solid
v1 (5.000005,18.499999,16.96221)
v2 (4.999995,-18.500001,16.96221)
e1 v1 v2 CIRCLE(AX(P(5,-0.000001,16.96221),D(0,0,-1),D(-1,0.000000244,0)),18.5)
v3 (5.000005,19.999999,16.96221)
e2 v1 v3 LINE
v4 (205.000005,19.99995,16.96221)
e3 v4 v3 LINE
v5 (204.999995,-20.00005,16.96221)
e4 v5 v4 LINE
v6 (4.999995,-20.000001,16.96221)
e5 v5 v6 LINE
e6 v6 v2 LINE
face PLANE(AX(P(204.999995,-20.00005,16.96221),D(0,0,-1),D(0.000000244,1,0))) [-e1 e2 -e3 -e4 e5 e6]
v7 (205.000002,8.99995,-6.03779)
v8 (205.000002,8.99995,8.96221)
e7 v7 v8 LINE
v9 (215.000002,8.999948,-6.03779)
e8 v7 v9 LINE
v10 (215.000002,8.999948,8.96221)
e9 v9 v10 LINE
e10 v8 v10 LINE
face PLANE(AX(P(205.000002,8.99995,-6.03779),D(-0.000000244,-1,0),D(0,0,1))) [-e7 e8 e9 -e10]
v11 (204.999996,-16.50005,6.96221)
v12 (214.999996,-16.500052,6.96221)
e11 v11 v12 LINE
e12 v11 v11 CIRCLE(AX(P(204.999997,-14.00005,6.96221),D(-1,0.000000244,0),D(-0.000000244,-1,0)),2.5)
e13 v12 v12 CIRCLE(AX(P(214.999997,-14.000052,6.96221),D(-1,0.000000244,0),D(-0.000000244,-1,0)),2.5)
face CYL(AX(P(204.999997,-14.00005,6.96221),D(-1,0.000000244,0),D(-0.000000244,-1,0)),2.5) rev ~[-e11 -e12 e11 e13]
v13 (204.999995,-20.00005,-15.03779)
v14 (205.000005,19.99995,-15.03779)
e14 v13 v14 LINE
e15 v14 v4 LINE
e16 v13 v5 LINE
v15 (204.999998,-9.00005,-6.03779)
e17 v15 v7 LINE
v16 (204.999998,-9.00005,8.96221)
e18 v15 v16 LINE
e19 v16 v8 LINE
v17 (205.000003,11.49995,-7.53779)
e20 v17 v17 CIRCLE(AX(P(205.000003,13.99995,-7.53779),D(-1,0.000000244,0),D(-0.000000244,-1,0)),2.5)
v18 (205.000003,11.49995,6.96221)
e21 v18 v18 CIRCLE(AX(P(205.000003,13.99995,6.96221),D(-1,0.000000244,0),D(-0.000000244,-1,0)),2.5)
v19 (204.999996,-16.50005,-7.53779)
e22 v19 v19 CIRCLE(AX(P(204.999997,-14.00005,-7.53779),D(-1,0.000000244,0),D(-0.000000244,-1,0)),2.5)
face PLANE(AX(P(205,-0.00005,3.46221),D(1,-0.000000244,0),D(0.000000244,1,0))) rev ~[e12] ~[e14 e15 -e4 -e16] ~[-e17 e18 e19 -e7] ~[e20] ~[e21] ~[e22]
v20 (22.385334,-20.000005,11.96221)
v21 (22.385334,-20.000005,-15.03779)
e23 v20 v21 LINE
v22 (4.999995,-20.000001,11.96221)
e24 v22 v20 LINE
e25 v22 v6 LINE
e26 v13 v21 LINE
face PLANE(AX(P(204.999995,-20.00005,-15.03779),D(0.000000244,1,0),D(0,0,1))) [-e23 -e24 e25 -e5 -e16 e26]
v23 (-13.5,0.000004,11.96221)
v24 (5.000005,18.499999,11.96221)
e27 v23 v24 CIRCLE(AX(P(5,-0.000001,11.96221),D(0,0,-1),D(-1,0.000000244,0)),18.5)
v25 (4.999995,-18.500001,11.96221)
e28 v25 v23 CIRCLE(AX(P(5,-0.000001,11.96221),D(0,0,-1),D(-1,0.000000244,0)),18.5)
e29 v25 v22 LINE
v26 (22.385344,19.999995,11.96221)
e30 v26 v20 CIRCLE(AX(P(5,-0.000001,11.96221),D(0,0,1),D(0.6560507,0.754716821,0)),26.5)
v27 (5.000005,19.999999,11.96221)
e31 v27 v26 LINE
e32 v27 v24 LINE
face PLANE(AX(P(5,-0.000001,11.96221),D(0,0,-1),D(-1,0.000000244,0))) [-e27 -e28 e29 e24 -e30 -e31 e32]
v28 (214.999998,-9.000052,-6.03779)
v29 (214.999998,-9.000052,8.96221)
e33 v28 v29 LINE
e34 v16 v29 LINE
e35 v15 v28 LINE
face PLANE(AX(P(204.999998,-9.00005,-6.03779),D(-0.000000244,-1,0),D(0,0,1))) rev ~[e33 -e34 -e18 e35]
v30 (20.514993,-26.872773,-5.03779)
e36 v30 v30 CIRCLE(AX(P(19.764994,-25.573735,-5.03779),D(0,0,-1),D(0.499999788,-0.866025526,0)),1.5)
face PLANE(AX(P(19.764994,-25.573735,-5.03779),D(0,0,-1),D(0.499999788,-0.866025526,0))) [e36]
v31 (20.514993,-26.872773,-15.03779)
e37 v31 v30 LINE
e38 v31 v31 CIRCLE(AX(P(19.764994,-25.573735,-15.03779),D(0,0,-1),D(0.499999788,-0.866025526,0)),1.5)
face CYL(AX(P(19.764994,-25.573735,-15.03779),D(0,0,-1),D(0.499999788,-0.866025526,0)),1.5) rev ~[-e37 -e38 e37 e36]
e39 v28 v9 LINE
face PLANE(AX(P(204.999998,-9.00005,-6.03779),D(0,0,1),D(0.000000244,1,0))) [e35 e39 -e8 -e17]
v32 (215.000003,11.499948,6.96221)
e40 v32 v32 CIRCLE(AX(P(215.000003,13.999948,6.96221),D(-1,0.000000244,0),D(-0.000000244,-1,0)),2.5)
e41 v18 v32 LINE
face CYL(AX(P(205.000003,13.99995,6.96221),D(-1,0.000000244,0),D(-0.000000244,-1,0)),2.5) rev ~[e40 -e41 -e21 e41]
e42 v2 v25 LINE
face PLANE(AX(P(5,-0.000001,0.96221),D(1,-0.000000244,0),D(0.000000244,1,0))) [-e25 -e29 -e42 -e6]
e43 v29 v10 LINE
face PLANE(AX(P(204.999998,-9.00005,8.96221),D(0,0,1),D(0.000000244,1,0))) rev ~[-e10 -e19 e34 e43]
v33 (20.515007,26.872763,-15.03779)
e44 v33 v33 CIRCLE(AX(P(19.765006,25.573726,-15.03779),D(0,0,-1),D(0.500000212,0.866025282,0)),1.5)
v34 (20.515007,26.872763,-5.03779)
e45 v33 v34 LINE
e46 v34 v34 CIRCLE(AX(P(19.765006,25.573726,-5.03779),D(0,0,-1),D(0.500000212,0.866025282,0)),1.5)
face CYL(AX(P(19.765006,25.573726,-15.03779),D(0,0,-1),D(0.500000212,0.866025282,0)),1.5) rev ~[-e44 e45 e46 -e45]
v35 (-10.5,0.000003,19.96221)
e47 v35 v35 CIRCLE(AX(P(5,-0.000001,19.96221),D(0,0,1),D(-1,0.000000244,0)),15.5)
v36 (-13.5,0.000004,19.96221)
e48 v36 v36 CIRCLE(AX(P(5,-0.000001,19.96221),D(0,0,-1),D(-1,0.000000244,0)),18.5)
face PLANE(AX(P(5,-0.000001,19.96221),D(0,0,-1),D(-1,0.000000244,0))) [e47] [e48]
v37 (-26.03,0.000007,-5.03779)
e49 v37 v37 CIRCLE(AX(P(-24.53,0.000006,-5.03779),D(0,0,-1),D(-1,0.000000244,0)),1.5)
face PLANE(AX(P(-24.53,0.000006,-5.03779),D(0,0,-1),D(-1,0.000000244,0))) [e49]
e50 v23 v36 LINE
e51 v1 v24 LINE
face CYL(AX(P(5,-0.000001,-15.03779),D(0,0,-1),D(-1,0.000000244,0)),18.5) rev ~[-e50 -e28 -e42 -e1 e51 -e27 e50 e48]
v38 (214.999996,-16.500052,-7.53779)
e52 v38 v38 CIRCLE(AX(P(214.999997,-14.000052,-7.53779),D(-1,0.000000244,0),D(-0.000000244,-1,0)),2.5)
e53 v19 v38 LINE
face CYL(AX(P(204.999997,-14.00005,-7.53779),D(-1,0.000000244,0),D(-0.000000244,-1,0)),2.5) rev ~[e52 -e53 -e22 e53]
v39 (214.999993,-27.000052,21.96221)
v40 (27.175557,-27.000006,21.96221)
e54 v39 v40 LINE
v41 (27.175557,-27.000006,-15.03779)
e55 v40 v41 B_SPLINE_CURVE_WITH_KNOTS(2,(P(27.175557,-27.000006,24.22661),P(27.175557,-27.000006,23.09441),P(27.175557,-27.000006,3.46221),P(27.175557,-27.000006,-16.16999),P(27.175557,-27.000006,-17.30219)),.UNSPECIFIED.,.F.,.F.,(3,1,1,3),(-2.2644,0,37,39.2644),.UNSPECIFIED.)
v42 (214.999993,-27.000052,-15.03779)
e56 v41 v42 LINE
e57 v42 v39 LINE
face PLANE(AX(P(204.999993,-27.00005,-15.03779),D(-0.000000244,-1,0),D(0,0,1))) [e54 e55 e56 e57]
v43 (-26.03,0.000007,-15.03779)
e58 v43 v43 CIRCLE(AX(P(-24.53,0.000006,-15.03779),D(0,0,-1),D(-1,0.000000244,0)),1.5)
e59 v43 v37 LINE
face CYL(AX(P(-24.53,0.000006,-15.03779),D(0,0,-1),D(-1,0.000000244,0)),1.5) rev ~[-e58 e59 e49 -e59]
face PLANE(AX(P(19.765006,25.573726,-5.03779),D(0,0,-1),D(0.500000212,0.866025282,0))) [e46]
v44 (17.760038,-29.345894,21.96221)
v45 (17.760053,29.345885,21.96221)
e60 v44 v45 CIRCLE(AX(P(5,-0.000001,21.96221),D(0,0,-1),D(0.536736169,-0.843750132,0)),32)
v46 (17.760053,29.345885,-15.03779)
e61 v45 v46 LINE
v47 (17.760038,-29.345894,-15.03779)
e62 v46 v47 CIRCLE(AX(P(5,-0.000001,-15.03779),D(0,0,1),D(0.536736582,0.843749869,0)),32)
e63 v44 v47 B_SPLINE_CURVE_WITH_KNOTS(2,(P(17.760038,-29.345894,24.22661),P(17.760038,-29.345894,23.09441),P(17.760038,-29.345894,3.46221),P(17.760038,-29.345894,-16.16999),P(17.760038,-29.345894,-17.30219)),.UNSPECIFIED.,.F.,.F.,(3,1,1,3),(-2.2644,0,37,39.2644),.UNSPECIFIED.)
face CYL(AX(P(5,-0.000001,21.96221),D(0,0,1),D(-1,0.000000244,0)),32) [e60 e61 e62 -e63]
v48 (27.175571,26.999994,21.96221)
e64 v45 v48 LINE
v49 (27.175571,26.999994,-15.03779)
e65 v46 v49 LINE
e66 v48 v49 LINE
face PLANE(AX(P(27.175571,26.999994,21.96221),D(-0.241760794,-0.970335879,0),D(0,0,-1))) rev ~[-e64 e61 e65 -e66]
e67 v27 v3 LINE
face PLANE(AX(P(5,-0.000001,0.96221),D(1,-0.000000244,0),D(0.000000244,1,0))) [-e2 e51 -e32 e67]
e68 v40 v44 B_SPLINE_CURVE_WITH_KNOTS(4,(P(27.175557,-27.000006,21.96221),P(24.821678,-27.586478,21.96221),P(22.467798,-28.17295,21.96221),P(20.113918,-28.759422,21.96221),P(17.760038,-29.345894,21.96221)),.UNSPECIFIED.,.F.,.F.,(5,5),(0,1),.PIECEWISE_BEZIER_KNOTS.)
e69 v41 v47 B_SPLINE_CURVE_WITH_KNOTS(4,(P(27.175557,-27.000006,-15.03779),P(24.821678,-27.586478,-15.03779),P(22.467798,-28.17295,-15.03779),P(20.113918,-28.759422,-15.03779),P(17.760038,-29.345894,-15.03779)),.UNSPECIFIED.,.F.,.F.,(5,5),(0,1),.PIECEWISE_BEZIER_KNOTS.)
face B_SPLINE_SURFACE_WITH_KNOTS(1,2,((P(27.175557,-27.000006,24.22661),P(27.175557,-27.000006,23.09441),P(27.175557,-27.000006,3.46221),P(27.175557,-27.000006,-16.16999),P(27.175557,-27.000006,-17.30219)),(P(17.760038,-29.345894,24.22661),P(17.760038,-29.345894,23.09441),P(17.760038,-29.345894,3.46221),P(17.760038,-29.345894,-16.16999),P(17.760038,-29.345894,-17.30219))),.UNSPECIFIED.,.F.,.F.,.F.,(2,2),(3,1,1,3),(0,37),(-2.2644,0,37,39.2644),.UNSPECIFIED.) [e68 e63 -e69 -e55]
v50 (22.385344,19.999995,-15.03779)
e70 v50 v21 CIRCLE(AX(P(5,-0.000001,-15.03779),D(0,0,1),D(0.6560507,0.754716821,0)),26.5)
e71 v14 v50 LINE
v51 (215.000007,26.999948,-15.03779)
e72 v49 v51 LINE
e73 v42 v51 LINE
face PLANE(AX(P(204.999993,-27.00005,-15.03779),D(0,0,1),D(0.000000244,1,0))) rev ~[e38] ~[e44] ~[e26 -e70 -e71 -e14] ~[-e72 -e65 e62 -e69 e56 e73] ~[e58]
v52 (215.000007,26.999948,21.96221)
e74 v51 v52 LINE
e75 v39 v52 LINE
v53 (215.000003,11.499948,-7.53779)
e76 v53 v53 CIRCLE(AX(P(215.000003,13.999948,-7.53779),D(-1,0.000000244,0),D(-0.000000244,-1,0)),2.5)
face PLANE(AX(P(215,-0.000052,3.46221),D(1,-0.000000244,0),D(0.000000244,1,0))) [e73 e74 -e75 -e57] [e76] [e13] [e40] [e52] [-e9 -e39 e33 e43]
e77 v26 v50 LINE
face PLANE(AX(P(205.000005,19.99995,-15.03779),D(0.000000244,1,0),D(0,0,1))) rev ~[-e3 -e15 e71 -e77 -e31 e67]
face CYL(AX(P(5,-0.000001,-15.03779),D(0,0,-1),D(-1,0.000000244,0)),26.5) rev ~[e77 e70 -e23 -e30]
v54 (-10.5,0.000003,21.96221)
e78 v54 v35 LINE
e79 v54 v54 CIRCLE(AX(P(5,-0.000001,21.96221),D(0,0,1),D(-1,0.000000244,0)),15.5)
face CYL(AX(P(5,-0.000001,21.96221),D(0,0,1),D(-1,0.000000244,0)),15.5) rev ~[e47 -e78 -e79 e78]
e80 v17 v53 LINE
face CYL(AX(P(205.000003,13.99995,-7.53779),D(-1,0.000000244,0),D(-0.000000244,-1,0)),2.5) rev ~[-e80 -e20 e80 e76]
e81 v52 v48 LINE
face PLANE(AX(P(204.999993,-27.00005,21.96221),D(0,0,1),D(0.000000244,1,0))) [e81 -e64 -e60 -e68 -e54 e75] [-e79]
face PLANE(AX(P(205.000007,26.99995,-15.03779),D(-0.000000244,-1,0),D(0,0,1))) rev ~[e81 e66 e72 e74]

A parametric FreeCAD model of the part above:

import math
import FreeCAD as App
import Part
import Sketcher


def edges_at(feature, points):
    """Names of the edges that pass closest to the given points."""
    edges = feature.Shape.Edges
    near = lambda p: min(range(len(edges)), key=lambda i: edges[i].distToShape(Part.Vertex(*p))[0])
    return sorted({f"Edge{near(p) + 1}" for p in points})


def add_polygon(sketch, points):
    """Adds a closed chain of lines whose ends are joined by coincident constraints."""
    first, n = sketch.GeometryCount, len(points)
    for a, b in zip(points, points[1:] + points[:1]):
        sketch.addGeometry(Part.LineSegment(App.Vector(*a, 0), App.Vector(*b, 0)), False)
    for i in range(n):
        sketch.addConstraint(Sketcher.Constraint("Coincident", first + i, 2, first + (i + 1) % n, 1))

doc = App.newDocument("Part")
body = doc.addObject("PartDesign::Body", "Body")

# Sketch on XY plane
sketch1 = doc.addObject("Sketcher::SketchObject", "Sketch")
body.addObject(sketch1)
sketch1.AttachmentSupport = (doc.XY_Plane, [""])
sketch1.MapMode = "FlatFace"
sketch1.AttachmentOffset = App.Placement(App.Vector(0, 0, 19.5), App.Rotation())
sketch1.addGeometry(Part.Circle(App.Vector(0, 0, 0), App.Vector(0, 0, 1), 32), False)
sketch1.addConstraint(Sketcher.Constraint("Coincident", 0, 3, -1, 1))
sketch1.addConstraint(Sketcher.Constraint("Diameter", 0, 64.0))
pad1 = doc.addObject("PartDesign::Pad", "Pad")
body.addObject(pad1)
pad1.Profile = sketch1
pad1.Length = 37
pad1.Reversed = True

# Sketch on XY plane
sketch2 = doc.addObject("Sketcher::SketchObject", "Sketch001")
body.addObject(sketch2)
sketch2.AttachmentSupport = (doc.XY_Plane, [""])
sketch2.MapMode = "FlatFace"
sketch2.AttachmentOffset = App.Placement(App.Vector(0, 0, -17.5), App.Rotation())
sketch2.addGeometry(Part.Circle(App.Vector(0, 0, 0), App.Vector(0, 0, 1), 18.5), False)
sketch2.addConstraint(Sketcher.Constraint("Coincident", 0, 3, -1, 1))
sketch2.addConstraint(Sketcher.Constraint("Diameter", 0, 37.0))
pocket1 = doc.addObject("PartDesign::Pocket", "Pocket")
body.addObject(pocket1)
pocket1.Profile = sketch2
pocket1.Length = 35
pocket1.Reversed = True

# Sketch on XY plane
sketch3 = doc.addObject("Sketcher::SketchObject", "Sketch002")
body.addObject(sketch3)
sketch3.AttachmentSupport = (doc.XY_Plane, [""])
sketch3.MapMode = "FlatFace"
sketch3.AttachmentOffset = App.Placement(App.Vector(0, 0, -17.5), App.Rotation())
sketch3.addGeometry(Part.Circle(App.Vector(0, 0, 0), App.Vector(0, 0, 1), 26.5), False)
sketch3.addConstraint(Sketcher.Constraint("Coincident", 0, 3, -1, 1))
sketch3.addConstraint(Sketcher.Constraint("Diameter", 0, 53.0))
pocket2 = doc.addObject("PartDesign::Pocket", "Pocket001")
body.addObject(pocket2)
pocket2.Profile = sketch3
pocket2.Length = 27
pocket2.Reversed = True

# Sketch on XY plane
sketch4 = doc.addObject("Sketcher::SketchObject", "Sketch003")
body.addObject(sketch4)
sketch4.AttachmentSupport = (doc.XY_Plane, [""])
sketch4.MapMode = "FlatFace"
sketch4.AttachmentOffset = App.Placement(App.Vector(0, 0, 19.5), App.Rotation())
sketch4.addGeometry(Part.Circle(App.Vector(0, 0, 0), App.Vector(0, 0, 1), 15.5), False)
sketch4.addConstraint(Sketcher.Constraint("Coincident", 0, 3, -1, 1))
sketch4.addConstraint(Sketcher.Constraint("Diameter", 0, 31.0))
pocket3 = doc.addObject("PartDesign::Pocket", "Pocket002")
body.addObject(pocket3)
pocket3.Profile = sketch4
pocket3.Type = "ThroughAll"

# Sketch on XY plane
sketch5 = doc.addObject("Sketcher::SketchObject", "Sketch004")
body.addObject(sketch5)
sketch5.AttachmentSupport = (doc.XY_Plane, [""])
sketch5.MapMode = "FlatFace"
sketch5.AttachmentOffset = App.Placement(App.Vector(0, 0, 19.5), App.Rotation())
sketch5.addGeometry(Part.ArcOfCircle(Part.Circle(App.Vector(0, 0, 0), App.Vector(0, 0, 1), 32), math.radians(122.461745), math.radians(237.538255)), False)
sketch5.addGeometry(Part.LineSegment(App.Vector(-17.175564, 27, 0), App.Vector(-200, 27, 0)), False)
sketch5.addGeometry(Part.LineSegment(App.Vector(-200, 27, 0), App.Vector(-200, -27, 0)), False)
sketch5.addGeometry(Part.LineSegment(App.Vector(-200, -27, 0), App.Vector(-17.175564, -27, 0)), False)
sketch5.addConstraint(Sketcher.Constraint("Coincident", 0, 1, 1, 1))
sketch5.addConstraint(Sketcher.Constraint("Coincident", 1, 2, 2, 1))
sketch5.addConstraint(Sketcher.Constraint("Coincident", 2, 2, 3, 1))
sketch5.addConstraint(Sketcher.Constraint("Coincident", 3, 2, 0, 2))
sketch5.addConstraint(Sketcher.Constraint("Horizontal", 1))
sketch5.addConstraint(Sketcher.Constraint("Vertical", 2))
sketch5.addConstraint(Sketcher.Constraint("Horizontal", 3))
sketch5.addConstraint(Sketcher.Constraint("Coincident", 0, 3, -1, 1))
sketch5.addConstraint(Sketcher.Constraint("Vertical", 0, 1, 3, 2))
sketch5.addConstraint(Sketcher.Constraint("Radius", 0, 32.0))
sketch5.addConstraint(Sketcher.Constraint("DistanceY", 2, 2, 2, 1, 54.0))
sketch5.addConstraint(Sketcher.Constraint("DistanceX", 1, 2, -1, 1, 200.0))
pad2 = doc.addObject("PartDesign::Pad", "Pad001")
body.addObject(pad2)
pad2.Profile = sketch5
pad2.Length = 37
pad2.Reversed = True

# Sketch on YZ plane
sketch6 = doc.addObject("Sketcher::SketchObject", "Sketch005")
body.addObject(sketch6)
sketch6.AttachmentSupport = (doc.YZ_Plane, [""])
sketch6.MapMode = "FlatFace"
sketch6.AttachmentOffset = App.Placement(App.Vector(0, 0, -200), App.Rotation())
add_polygon(sketch6, [(20, 14.5), (20, -17.5), (-20, -17.5), (-20, 14.5)])  # lines 0-3
sketch6.addConstraint(Sketcher.Constraint("Vertical", 0))
sketch6.addConstraint(Sketcher.Constraint("Horizontal", 1))
sketch6.addConstraint(Sketcher.Constraint("Vertical", 2))
sketch6.addConstraint(Sketcher.Constraint("Horizontal", 3))
sketch6.addConstraint(Sketcher.Constraint("DistanceX", 1, 2, 1, 1, 40.0))
sketch6.addConstraint(Sketcher.Constraint("DistanceY", 0, 2, 0, 1, 32.0))
sketch6.addConstraint(Sketcher.Constraint("DistanceX", -1, 1, 0, 2, 20.0))
sketch6.addConstraint(Sketcher.Constraint("DistanceY", 0, 2, -1, 1, 17.5))
pocket4 = doc.addObject("PartDesign::Pocket", "Pocket003")
body.addObject(pocket4)
pocket4.Profile = sketch6
pocket4.Length = 200
pocket4.Reversed = True

# Sketch on YZ plane
sketch7 = doc.addObject("Sketcher::SketchObject", "Sketch006")
body.addObject(sketch7)
sketch7.AttachmentSupport = (doc.YZ_Plane, [""])
sketch7.MapMode = "FlatFace"
sketch7.AttachmentOffset = App.Placement(App.Vector(0, 0, -200), App.Rotation())
add_polygon(sketch7, [(27, 19.5), (27, -17.5), (-27, -17.5), (-27, 19.5)])  # lines 0-3
add_polygon(sketch7, [(-9, -8.5), (9, -8.5), (9, 6.5), (-9, 6.5)])  # lines 4-7
sketch7.addConstraint(Sketcher.Constraint("Vertical", 0))
sketch7.addConstraint(Sketcher.Constraint("Horizontal", 1))
sketch7.addConstraint(Sketcher.Constraint("Vertical", 2))
sketch7.addConstraint(Sketcher.Constraint("Horizontal", 3))
sketch7.addConstraint(Sketcher.Constraint("Horizontal", 4))
sketch7.addConstraint(Sketcher.Constraint("Vertical", 5))
sketch7.addConstraint(Sketcher.Constraint("Horizontal", 6))
sketch7.addConstraint(Sketcher.Constraint("Vertical", 7))
sketch7.addConstraint(Sketcher.Constraint("DistanceX", 1, 2, 1, 1, 54.0))
sketch7.addConstraint(Sketcher.Constraint("DistanceX", 4, 1, 4, 2, 18.0))
sketch7.addConstraint(Sketcher.Constraint("DistanceY", 0, 2, 0, 1, 37.0))
sketch7.addConstraint(Sketcher.Constraint("DistanceY", 5, 1, 5, 2, 15.0))
sketch7.addConstraint(Sketcher.Constraint("DistanceX", -1, 1, 0, 2, 27.0))
sketch7.addConstraint(Sketcher.Constraint("DistanceX", -1, 1, 4, 2, 9.0))
sketch7.addConstraint(Sketcher.Constraint("DistanceY", 0, 2, 4, 2, 9.0))
sketch7.addConstraint(Sketcher.Constraint("DistanceY", 0, 2, -1, 1, 17.5))
pad3 = doc.addObject("PartDesign::Pad", "Pad002")
body.addObject(pad3)
pad3.Profile = sketch7
pad3.Length = 10
pad3.Reversed = True

# Sketch on XY plane
sketch8 = doc.addObject("Sketcher::SketchObject", "Sketch007")
body.addObject(sketch8)
sketch8.AttachmentSupport = (doc.XY_Plane, [""])
sketch8.MapMode = "FlatFace"
sketch8.AttachmentOffset = App.Placement(App.Vector(0, 0, -17.5), App.Rotation())
sketch8.addGeometry(Part.Circle(App.Vector(29.53, 0, 0), App.Vector(0, 0, 1), 1.5), False)
sketch8.addConstraint(Sketcher.Constraint("PointOnObject", 0, 3, -1))
sketch8.addConstraint(Sketcher.Constraint("Diameter", 0, 3.0))
sketch8.addConstraint(Sketcher.Constraint("DistanceX", -1, 1, 0, 3, 29.53))
pocket5 = doc.addObject("PartDesign::Pocket", "Pocket004")
body.addObject(pocket5)
pocket5.Profile = sketch8
pocket5.Length = 10
pocket5.Reversed = True
doc.recompute()

polarpattern = doc.addObject("PartDesign::PolarPattern", "PolarPattern")
body.addObject(polarpattern)
polarpattern.Originals = [pocket5]
polarpattern.Axis = (doc.Z_Axis, [""])
polarpattern.Angle = 360
polarpattern.Occurrences = 3
body.Tip = polarpattern
doc.recompute()

chamfer = doc.addObject("PartDesign::Chamfer", "Chamfer")
body.addObject(chamfer)
chamfer.Base = (polarpattern, edges_at(polarpattern, [(-17.176, -27, 1), (-17.176, 27, 1)]))
chamfer.Size = 5

# Sketch on YZ plane
sketch9 = doc.addObject("Sketcher::SketchObject", "Sketch008")
body.addObject(sketch9)
sketch9.AttachmentSupport = (doc.YZ_Plane, [""])
sketch9.MapMode = "FlatFace"
sketch9.AttachmentOffset = App.Placement(App.Vector(0, 0, -200), App.Rotation())
sketch9.addGeometry(Part.Circle(App.Vector(-14, 4.5, 0), App.Vector(0, 0, 1), 2.5), False)
sketch9.addGeometry(Part.Circle(App.Vector(14, 4.5, 0), App.Vector(0, 0, 1), 2.5), False)
sketch9.addGeometry(Part.Circle(App.Vector(-14, -10, 0), App.Vector(0, 0, 1), 2.5), False)
sketch9.addGeometry(Part.Circle(App.Vector(14, -10, 0), App.Vector(0, 0, 1), 2.5), False)
sketch9.addConstraint(Sketcher.Constraint("Equal", 0, 1))
sketch9.addConstraint(Sketcher.Constraint("Equal", 1, 2))
sketch9.addConstraint(Sketcher.Constraint("Equal", 2, 3))
sketch9.addConstraint(Sketcher.Constraint("Symmetric", 0, 3, 1, 3, -2))
sketch9.addConstraint(Sketcher.Constraint("Symmetric", 2, 3, 3, 3, -2))
sketch9.addConstraint(Sketcher.Constraint("Vertical", 0, 3, 2, 3))
sketch9.addConstraint(Sketcher.Constraint("Diameter", 0, 5.0))
sketch9.addConstraint(Sketcher.Constraint("DistanceX", 0, 3, -1, 1, 14.0))
sketch9.addConstraint(Sketcher.Constraint("DistanceY", 2, 3, -1, 1, 10.0))
sketch9.addConstraint(Sketcher.Constraint("DistanceY", -1, 1, 0, 3, 4.5))
pocket6 = doc.addObject("PartDesign::Pocket", "Pocket005")
body.addObject(pocket6)
pocket6.Profile = sketch9
pocket6.Type = "ThroughAll"
body2 = doc.addObject("PartDesign::Body", "Body001")
doc.recompute()

body.Placement = App.Placement(App.Vector(5, -0.000001, 2.46221), App.Rotation(App.Vector(0, 0, 1), 179.999986))
boolean = doc.addObject("PartDesign::Boolean", "Boolean")
body2.addObject(boolean)
boolean.Type = "Fuse"
boolean.addObjects([body])

doc.recompute()
